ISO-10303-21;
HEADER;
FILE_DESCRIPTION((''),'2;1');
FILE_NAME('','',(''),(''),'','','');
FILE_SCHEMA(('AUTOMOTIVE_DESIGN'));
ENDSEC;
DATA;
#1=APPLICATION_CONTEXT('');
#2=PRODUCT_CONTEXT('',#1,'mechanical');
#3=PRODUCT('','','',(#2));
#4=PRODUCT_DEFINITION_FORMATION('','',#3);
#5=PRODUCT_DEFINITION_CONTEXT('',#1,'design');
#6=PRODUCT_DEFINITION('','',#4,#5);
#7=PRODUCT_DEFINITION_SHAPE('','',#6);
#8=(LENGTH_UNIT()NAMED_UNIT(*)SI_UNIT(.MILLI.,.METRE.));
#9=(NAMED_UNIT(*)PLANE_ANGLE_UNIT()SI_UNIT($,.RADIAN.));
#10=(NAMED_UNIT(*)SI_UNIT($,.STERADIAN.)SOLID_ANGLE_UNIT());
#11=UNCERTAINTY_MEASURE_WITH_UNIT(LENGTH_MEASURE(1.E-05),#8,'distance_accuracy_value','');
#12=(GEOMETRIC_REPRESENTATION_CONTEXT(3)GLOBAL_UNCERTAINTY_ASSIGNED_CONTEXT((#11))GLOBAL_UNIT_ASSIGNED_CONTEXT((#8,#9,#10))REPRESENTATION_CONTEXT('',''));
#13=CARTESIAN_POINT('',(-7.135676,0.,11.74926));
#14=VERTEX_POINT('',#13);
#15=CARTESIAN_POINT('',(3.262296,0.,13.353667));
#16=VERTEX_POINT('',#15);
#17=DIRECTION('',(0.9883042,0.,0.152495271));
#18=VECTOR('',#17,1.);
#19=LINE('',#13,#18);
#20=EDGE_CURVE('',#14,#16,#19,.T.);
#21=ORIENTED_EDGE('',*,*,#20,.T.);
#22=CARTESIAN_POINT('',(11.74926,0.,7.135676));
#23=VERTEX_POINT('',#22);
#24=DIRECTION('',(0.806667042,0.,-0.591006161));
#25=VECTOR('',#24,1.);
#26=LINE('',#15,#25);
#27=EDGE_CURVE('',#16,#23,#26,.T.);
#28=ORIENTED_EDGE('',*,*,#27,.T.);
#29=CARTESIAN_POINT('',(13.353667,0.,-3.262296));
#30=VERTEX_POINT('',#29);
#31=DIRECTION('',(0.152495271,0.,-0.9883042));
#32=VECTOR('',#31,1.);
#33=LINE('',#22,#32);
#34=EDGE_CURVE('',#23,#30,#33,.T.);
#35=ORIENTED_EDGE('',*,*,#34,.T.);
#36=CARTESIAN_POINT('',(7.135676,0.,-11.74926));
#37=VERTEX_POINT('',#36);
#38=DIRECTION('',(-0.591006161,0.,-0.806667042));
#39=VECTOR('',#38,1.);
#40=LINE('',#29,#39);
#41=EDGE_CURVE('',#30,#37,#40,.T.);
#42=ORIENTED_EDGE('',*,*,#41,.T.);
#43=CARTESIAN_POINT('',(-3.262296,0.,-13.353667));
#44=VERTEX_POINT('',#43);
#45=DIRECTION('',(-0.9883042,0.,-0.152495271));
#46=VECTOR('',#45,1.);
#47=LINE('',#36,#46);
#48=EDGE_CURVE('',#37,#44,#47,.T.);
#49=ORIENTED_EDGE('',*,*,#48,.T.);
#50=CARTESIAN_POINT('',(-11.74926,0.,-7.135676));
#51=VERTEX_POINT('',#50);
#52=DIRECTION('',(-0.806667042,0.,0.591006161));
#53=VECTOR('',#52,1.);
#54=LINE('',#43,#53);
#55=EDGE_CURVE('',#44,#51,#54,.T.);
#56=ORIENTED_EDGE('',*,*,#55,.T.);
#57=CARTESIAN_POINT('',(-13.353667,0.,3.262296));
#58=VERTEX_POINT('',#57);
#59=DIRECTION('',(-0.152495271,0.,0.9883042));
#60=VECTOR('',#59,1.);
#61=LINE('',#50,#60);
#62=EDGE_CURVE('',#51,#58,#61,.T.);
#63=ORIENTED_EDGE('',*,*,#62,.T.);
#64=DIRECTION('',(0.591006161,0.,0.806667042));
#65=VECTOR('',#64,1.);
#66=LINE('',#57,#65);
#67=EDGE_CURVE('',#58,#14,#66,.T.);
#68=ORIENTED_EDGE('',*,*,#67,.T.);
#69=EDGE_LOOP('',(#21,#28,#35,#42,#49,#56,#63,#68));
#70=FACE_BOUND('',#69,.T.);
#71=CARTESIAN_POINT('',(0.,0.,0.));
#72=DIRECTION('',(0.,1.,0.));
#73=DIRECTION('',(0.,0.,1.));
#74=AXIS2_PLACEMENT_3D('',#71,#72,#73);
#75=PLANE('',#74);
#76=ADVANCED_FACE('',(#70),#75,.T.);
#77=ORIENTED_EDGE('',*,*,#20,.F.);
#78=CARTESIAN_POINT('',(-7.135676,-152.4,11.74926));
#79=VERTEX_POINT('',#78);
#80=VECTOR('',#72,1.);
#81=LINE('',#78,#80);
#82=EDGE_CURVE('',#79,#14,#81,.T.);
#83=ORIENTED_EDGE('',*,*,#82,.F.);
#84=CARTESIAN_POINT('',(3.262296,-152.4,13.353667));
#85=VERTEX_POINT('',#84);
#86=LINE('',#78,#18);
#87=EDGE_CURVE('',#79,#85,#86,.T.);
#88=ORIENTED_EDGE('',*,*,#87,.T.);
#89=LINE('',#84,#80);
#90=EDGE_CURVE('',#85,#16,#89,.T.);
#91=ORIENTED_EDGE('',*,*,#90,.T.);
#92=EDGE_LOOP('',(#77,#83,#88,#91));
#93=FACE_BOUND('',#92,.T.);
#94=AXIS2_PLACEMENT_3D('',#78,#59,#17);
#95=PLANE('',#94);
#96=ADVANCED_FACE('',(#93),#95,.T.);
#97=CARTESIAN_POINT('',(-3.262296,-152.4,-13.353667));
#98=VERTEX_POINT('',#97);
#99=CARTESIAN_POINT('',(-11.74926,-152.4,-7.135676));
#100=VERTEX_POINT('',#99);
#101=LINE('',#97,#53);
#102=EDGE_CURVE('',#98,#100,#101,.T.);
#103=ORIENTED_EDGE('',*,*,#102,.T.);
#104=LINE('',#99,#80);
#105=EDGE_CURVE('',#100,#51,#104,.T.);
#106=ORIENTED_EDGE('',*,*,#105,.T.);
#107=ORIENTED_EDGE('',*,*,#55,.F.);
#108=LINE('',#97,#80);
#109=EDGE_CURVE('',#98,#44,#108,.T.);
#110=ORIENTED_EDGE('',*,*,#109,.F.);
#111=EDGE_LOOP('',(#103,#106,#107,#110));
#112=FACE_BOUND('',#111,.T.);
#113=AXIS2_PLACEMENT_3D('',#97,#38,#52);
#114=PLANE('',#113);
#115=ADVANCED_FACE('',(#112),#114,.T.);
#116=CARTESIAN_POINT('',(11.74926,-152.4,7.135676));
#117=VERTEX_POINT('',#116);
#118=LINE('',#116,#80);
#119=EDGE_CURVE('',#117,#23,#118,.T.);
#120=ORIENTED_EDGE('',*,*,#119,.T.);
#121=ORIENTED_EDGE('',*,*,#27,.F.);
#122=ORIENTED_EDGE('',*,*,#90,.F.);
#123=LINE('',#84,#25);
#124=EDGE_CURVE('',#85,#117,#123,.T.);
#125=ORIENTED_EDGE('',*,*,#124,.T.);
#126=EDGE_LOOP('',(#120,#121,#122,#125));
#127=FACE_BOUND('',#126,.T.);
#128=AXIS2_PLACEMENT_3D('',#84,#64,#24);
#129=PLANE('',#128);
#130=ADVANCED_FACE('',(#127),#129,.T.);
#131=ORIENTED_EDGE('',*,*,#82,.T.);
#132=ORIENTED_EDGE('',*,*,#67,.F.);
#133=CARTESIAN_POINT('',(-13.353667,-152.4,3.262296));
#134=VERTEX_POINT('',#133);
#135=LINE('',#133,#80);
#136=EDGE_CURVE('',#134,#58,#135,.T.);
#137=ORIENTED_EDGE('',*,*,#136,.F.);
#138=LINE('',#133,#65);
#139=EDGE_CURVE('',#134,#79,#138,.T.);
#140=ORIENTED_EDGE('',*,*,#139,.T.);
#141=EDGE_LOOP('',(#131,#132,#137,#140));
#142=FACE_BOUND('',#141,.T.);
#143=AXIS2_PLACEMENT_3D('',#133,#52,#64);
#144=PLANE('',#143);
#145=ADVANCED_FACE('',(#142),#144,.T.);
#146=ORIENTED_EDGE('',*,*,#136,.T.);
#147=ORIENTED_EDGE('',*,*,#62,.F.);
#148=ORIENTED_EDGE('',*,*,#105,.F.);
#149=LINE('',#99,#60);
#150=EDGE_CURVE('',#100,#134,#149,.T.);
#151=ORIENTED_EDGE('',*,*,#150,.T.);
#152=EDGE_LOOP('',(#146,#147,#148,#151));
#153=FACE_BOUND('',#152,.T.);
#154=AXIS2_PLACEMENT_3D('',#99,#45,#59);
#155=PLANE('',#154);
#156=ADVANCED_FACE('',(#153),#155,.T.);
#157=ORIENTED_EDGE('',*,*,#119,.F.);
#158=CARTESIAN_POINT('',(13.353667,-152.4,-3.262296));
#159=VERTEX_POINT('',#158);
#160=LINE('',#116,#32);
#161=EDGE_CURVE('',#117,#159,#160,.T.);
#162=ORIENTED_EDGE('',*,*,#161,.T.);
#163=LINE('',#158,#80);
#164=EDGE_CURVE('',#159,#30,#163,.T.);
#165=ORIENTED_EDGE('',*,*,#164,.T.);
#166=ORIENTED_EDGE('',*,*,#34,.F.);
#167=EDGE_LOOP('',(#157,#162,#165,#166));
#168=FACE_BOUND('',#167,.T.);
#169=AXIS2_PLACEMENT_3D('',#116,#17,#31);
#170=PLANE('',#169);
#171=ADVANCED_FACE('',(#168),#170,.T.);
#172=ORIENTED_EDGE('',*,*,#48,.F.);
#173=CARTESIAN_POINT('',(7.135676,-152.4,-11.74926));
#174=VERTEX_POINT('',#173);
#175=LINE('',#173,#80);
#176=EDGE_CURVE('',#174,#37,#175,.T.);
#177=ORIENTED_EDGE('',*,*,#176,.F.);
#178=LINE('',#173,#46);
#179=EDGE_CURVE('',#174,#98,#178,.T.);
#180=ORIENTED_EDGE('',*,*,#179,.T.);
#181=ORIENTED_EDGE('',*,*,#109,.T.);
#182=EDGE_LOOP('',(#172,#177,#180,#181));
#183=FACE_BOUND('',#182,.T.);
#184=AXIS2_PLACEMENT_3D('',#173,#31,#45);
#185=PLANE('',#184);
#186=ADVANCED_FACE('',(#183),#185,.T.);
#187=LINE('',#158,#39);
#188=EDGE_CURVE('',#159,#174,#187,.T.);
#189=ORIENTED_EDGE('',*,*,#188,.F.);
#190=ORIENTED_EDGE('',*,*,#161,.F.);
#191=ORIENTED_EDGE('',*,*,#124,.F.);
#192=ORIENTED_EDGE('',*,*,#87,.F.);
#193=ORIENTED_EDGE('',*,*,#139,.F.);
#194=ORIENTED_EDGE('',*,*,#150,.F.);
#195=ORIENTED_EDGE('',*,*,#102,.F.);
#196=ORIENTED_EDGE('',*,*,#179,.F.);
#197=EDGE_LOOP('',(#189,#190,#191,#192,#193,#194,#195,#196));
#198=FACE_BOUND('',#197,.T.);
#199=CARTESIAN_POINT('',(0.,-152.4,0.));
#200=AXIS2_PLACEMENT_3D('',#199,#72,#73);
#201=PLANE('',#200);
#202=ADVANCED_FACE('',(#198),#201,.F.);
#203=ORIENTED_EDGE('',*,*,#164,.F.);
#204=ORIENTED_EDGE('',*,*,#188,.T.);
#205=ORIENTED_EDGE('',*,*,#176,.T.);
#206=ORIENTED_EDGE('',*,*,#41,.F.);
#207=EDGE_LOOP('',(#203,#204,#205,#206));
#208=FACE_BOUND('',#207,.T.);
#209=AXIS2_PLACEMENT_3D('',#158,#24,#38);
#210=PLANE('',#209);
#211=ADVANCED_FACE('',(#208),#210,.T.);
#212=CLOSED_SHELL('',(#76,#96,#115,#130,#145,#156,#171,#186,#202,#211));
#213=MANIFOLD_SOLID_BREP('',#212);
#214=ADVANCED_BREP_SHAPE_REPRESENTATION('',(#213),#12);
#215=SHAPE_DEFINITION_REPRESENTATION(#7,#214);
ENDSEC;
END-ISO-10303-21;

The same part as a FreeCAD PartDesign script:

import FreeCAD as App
import Part
import Sketcher
Q = App.Units.Quantity


def add_polygon(sketch, points):
    """Adds a closed chain of lines whose ends are joined by coincident constraints."""
    first, n = sketch.GeometryCount, len(points)
    for a, b in zip(points, points[1:] + points[:1]):
        sketch.addGeometry(Part.LineSegment(App.Vector(*a, 0), App.Vector(*b, 0)), False)
    for i in range(n):
        sketch.addConstraint(Sketcher.Constraint("Coincident", first + i, 2, first + (i + 1) % n, 1))

doc = App.newDocument("Part")
body = doc.addObject("PartDesign::Body", "Body")

# Sketch on XZ plane
sketch1 = body.newObject("Sketcher::SketchObject", "Sketch")
sketch1.AttachmentSupport = (doc.getObject("XZ_Plane"), [""])
sketch1.MapMode = "FlatFace"
add_polygon(sketch1, [(11.74926, 7.135676), (13.353667, -3.262296), (7.135676, -11.74926), (-3.262296, -13.353667), (-11.74926, -7.135676), (-13.353667, 3.262296), (-7.135676, 11.74926), (3.262296, 13.353667)])  # lines 0-7
sketch1.addConstraint(Sketcher.Constraint("Symmetric", 0, 2, 4, 2, -1, 1))
sketch1.addConstraint(Sketcher.Constraint("Symmetric", 1, 2, 5, 2, -1, 1))
sketch1.addConstraint(Sketcher.Constraint("Symmetric", 2, 2, 6, 2, -1, 1))
sketch1.addConstraint(Sketcher.Constraint("Symmetric", 3, 2, 7, 2, -1, 1))
sketch1.addConstraint(Sketcher.Constraint("Perpendicular", 0, 2))
sketch1.addConstraint(Sketcher.Constraint("Perpendicular", 1, 3))
sketch1.addConstraint(Sketcher.Constraint("Equal", 0, 1))
sketch1.addConstraint(Sketcher.Constraint("Equal", 1, 2))
sketch1.addConstraint(Sketcher.Constraint("Equal", 2, 3))
sketch1.addConstraint(Sketcher.Constraint("DistanceY", 1, 2, -1, 1, Q("11.74926 mm")))
sketch1.addConstraint(Sketcher.Constraint("DistanceX", 1, 2, 0, 2, Q("6.21799 mm")))
sketch1.addConstraint(Sketcher.Constraint("DistanceY", 2, 2, 0, 2, Q("10.09137 mm")))
pad1 = body.newObject("PartDesign::Pad", "Pad")
pad1.Profile = sketch1
pad1.Length = Q("6 in")

doc.recompute()
